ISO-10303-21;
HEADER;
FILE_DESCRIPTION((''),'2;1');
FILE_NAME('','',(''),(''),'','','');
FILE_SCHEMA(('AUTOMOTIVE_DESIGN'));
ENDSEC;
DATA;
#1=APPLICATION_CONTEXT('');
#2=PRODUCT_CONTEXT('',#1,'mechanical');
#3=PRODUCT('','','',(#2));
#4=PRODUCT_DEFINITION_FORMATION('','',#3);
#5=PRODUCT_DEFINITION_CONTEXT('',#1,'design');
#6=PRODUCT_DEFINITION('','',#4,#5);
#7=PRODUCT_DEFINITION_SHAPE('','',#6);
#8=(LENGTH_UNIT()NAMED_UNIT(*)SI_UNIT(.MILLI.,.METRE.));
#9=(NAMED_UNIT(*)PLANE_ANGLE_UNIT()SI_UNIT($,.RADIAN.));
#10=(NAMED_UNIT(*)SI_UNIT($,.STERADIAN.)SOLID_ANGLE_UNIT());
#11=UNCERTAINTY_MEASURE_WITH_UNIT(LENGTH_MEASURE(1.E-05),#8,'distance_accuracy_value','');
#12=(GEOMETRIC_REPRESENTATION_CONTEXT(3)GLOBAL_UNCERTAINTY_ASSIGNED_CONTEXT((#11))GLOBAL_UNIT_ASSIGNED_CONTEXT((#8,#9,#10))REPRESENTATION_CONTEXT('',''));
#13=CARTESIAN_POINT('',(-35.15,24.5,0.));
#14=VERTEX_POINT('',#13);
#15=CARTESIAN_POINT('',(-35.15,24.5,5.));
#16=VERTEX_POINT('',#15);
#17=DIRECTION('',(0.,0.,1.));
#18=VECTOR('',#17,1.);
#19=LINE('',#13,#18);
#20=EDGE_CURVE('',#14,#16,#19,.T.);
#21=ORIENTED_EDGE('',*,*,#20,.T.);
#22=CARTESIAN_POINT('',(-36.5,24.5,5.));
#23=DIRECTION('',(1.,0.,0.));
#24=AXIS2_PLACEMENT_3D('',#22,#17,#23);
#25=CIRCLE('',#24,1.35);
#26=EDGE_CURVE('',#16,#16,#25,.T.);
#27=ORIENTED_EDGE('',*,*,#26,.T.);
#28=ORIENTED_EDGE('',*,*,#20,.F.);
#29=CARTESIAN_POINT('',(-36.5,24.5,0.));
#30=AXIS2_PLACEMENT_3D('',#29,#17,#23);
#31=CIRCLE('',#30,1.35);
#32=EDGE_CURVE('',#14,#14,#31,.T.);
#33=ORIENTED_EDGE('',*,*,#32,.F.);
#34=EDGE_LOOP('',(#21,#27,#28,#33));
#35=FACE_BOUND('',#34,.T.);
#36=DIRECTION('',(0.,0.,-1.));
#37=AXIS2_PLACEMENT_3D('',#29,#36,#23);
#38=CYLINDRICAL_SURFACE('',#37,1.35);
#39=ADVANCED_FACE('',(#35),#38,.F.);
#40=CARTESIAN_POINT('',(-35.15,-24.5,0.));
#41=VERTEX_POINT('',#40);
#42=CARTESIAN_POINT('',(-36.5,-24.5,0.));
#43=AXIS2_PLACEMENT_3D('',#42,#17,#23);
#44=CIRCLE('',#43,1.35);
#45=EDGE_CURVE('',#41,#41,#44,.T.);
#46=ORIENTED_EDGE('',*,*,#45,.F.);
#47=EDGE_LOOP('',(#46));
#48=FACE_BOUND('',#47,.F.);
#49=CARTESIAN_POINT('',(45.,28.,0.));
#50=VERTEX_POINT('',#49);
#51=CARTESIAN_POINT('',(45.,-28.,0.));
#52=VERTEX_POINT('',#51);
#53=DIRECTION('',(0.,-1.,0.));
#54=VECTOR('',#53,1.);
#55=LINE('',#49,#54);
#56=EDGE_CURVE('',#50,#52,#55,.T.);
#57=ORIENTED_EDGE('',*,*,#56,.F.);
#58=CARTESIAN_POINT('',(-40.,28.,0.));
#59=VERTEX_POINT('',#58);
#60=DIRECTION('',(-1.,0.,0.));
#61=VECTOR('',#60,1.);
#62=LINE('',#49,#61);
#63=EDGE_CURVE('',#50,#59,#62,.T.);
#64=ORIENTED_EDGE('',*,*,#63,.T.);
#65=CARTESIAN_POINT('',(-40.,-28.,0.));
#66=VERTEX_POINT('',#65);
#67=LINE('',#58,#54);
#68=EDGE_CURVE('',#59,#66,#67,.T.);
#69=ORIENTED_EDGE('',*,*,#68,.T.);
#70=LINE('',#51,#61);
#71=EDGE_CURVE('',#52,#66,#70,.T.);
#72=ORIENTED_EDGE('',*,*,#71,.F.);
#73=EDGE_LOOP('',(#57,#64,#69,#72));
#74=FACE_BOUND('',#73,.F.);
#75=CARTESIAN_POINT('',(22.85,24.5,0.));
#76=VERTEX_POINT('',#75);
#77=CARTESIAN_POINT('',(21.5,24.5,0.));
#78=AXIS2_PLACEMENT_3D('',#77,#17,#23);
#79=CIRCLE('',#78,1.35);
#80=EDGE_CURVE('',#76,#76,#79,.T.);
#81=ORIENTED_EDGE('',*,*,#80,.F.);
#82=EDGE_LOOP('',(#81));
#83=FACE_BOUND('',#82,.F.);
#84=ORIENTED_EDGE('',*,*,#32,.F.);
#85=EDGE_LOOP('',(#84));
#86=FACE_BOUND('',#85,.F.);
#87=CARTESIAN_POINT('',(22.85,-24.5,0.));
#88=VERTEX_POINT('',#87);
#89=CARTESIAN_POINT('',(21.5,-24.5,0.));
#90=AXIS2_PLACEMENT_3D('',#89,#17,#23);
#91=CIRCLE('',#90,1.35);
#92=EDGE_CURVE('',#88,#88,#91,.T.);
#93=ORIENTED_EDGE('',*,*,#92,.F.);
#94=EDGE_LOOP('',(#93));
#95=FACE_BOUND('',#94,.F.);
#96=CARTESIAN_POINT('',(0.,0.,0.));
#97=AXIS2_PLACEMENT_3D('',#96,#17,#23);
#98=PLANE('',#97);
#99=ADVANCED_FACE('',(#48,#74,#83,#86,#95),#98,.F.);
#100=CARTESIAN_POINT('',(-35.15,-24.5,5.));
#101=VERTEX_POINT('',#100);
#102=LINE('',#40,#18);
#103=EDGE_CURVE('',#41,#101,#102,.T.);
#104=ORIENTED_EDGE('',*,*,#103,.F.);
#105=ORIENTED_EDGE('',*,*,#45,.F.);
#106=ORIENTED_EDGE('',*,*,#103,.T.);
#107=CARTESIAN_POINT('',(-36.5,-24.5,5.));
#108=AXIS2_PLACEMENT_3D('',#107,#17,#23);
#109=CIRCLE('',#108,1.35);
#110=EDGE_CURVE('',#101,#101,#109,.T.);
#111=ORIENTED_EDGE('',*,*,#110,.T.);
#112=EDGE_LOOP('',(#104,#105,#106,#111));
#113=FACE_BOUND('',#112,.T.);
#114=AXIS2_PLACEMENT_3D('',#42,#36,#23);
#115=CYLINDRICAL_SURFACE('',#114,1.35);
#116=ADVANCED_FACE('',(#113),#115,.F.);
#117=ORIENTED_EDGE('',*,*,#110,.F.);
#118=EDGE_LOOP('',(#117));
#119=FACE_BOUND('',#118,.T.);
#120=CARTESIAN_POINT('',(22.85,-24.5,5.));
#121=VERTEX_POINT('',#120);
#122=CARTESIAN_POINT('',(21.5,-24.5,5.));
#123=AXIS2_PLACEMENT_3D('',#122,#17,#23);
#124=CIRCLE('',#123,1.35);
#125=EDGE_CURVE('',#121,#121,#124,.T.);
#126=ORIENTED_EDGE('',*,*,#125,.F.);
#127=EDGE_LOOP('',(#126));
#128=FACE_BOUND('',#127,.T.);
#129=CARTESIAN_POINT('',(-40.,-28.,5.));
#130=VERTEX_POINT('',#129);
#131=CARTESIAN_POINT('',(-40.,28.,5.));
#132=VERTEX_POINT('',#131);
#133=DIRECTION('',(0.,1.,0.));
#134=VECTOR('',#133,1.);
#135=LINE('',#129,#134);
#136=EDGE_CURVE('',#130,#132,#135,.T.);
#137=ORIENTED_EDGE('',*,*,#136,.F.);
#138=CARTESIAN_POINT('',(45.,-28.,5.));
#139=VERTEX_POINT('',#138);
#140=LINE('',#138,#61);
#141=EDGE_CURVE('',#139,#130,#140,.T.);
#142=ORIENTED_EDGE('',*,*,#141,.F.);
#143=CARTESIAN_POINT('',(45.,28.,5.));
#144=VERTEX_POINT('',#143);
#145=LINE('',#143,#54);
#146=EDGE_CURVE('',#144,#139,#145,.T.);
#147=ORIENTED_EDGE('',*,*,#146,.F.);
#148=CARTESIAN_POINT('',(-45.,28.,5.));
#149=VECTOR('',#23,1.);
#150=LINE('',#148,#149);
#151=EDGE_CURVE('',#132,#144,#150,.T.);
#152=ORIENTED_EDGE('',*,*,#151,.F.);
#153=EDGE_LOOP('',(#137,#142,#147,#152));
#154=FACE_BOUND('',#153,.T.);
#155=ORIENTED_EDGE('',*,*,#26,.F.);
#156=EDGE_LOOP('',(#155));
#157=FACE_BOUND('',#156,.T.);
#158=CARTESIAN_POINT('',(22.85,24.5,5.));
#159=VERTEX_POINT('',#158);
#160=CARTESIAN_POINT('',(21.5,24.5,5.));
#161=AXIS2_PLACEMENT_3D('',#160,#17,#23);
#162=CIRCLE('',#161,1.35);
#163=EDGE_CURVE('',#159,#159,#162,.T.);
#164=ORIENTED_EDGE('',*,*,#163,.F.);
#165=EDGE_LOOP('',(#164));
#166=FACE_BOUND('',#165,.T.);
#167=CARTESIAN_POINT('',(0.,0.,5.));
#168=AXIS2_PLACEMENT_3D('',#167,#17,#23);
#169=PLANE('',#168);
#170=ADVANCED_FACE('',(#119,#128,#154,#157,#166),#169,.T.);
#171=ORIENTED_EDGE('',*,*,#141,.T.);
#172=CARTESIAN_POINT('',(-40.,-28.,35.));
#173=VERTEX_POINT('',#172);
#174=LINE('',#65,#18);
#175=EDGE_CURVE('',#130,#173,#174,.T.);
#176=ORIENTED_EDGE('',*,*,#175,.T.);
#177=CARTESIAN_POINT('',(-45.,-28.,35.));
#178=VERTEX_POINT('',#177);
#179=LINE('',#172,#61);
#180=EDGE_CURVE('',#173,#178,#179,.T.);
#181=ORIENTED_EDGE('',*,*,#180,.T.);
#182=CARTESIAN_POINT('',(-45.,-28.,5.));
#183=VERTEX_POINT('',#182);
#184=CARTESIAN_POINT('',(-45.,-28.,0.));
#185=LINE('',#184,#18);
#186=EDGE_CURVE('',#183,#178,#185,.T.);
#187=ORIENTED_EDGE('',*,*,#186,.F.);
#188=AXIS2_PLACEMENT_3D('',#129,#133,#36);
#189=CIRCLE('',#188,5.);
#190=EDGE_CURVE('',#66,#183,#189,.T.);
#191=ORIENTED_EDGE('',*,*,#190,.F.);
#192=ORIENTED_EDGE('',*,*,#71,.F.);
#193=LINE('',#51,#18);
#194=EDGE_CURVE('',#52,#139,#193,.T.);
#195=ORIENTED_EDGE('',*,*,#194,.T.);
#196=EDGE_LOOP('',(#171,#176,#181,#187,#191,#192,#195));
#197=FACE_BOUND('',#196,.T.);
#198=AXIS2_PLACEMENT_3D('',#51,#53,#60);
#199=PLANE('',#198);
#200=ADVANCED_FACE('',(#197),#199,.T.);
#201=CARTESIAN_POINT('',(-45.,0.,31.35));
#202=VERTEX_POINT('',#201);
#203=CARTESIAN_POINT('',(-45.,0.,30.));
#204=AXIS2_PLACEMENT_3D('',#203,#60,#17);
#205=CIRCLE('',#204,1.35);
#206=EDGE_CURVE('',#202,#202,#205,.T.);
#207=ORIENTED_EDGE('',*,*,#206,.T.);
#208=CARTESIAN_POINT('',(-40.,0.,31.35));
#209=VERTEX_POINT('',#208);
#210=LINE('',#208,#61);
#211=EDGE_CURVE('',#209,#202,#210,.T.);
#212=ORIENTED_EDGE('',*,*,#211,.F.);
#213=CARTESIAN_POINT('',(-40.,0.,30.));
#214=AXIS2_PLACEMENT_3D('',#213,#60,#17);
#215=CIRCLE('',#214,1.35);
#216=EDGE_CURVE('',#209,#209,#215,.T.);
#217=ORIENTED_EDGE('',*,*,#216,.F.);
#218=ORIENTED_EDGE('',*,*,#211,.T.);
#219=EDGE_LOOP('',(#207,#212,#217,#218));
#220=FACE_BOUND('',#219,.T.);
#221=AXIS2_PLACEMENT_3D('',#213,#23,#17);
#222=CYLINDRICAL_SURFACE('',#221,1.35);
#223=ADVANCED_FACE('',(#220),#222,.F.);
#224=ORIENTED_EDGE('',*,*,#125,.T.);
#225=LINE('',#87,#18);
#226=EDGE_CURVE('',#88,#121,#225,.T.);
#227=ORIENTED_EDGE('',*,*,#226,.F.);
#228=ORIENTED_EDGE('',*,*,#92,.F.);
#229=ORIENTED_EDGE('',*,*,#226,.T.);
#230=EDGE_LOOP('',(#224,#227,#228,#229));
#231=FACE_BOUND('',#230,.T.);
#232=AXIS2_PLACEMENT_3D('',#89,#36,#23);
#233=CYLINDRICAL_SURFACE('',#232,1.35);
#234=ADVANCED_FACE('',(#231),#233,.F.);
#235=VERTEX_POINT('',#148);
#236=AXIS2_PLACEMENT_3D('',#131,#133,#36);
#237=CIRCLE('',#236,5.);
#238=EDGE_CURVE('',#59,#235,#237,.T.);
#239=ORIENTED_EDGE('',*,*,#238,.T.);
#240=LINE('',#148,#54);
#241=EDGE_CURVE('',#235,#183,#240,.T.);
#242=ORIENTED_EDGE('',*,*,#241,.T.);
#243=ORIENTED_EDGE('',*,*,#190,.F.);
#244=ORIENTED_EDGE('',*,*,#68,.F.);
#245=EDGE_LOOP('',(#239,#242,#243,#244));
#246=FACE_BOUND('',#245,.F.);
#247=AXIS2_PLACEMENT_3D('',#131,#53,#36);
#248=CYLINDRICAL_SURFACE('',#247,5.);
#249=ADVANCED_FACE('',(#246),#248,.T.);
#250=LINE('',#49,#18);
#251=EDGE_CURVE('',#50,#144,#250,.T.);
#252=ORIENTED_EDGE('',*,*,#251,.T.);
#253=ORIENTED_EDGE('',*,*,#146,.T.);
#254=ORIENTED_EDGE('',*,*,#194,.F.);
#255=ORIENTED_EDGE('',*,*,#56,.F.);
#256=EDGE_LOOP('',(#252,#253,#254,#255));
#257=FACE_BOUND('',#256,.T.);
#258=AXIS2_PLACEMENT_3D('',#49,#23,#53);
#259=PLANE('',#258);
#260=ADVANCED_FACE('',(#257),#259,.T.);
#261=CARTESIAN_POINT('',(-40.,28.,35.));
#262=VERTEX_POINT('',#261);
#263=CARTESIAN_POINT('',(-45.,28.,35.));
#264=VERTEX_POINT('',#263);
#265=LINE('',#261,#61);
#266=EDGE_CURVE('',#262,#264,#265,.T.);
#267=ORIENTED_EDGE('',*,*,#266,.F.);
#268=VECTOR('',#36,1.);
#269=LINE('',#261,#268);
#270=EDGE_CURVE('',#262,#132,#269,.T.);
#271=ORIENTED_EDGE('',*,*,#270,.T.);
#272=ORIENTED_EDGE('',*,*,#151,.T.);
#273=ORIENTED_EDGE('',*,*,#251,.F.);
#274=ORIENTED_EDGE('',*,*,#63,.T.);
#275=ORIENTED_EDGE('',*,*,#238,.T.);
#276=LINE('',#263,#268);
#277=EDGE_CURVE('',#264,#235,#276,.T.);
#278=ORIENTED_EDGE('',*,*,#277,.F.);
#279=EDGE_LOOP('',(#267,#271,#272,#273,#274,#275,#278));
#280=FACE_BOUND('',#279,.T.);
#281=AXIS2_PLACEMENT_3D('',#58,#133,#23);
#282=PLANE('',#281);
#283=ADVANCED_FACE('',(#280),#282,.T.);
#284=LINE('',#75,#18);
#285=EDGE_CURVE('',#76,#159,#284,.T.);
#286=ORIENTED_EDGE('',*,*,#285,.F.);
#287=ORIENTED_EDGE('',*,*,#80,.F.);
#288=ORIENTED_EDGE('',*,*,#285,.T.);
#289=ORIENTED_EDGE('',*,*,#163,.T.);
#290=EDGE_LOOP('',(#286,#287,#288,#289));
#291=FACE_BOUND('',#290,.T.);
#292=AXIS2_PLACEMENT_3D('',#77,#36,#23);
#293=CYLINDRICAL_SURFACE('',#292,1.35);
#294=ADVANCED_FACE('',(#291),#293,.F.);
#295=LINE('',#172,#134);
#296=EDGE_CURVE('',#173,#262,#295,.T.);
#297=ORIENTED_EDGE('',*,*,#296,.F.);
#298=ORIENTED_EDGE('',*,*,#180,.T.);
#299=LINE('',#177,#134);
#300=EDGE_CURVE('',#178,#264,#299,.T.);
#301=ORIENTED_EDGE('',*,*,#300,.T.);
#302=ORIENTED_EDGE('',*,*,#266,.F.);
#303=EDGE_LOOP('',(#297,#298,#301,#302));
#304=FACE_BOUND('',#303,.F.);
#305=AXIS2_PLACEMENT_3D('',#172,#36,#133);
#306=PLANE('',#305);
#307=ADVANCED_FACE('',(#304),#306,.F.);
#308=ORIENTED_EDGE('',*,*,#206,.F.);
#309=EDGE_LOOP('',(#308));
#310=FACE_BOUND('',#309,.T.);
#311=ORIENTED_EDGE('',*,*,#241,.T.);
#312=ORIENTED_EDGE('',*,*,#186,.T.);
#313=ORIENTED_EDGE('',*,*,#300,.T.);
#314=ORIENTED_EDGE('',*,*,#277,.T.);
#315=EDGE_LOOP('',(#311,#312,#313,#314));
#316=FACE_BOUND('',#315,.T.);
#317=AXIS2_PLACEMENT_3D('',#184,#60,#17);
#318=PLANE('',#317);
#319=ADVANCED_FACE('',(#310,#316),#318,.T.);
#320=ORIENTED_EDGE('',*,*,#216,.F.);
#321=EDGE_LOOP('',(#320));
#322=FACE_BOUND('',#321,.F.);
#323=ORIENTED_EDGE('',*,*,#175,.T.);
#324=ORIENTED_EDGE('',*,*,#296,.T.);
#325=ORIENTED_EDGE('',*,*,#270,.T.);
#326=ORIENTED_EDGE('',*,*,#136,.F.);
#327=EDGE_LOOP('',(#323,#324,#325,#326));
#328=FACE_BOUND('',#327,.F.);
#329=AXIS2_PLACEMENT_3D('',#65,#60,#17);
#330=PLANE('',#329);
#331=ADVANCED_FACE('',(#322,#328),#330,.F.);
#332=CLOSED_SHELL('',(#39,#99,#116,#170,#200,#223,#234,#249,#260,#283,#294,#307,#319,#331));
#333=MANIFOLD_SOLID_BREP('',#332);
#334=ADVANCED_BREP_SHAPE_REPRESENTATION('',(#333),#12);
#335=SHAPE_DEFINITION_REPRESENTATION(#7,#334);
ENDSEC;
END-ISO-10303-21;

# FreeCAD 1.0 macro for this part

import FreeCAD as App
import Part
import Sketcher


def edges_at(feature, points):
    """Names of the edges that pass closest to the given points."""
    edges = feature.Shape.Edges
    near = lambda p: min(range(len(edges)), key=lambda i: edges[i].distToShape(Part.Vertex(*p))[0])
    return sorted({f"Edge{near(p) + 1}" for p in points})


def add_polygon(sketch, points):
    """Adds a closed chain of lines whose ends are joined by coincident constraints."""
    first, n = sketch.GeometryCount, len(points)
    for a, b in zip(points, points[1:] + points[:1]):
        sketch.addGeometry(Part.LineSegment(App.Vector(*a, 0), App.Vector(*b, 0)), False)
    for i in range(n):
        sketch.addConstraint(Sketcher.Constraint("Coincident", first + i, 2, first + (i + 1) % n, 1))

doc = App.newDocument("Part")
body = doc.addObject("PartDesign::Body", "Body")

# Sketch on XY plane
sketch1 = body.newObject("Sketcher::SketchObject", "Sketch")
sketch1.AttachmentSupport = (doc.getObject("XY_Plane"), [""])
sketch1.MapMode = "FlatFace"
add_polygon(sketch1, [(45, 28), (-40, 28), (-40, -28), (45, -28)])  # lines 0-3
sketch1.addGeometry(Part.Circle(App.Vector(-36.5, -24.5, 0), App.Vector(0, 0, 1), 1.4), False)  # 4
sketch1.addGeometry(Part.Circle(App.Vector(21.5, -24.5, 0), App.Vector(0, 0, 1), 1.4), False)  # 5
sketch1.addGeometry(Part.Circle(App.Vector(-36.5, 24.5, 0), App.Vector(0, 0, 1), 1.4), False)  # 6
sketch1.addGeometry(Part.Circle(App.Vector(21.5, 24.5, 0), App.Vector(0, 0, 1), 1.4), False)  # 7
sketch1.addConstraint([
    Sketcher.Constraint("Horizontal", 0),
    Sketcher.Constraint("Vertical", 1),
    Sketcher.Constraint("Horizontal", 2),
    Sketcher.Constraint("Vertical", 3),
    Sketcher.Constraint("Equal", 4, 5),
    Sketcher.Constraint("Equal", 5, 6),
    Sketcher.Constraint("Equal", 6, 7),
    Sketcher.Constraint("Symmetric", 4, 3, 6, 3, -1),
    Sketcher.Constraint("Symmetric", 5, 3, 7, 3, -1),
    Sketcher.Constraint("Horizontal", 4, 3, 5, 3),
    Sketcher.Constraint("Diameter", 4, 2.7),
    Sketcher.Constraint("DistanceY", 1, 2, 1, 1, 56.0),
    Sketcher.Constraint("DistanceY", 4, 3, 6, 3, 49.0),
    Sketcher.Constraint("DistanceX", 0, 2, 6, 3, 3.5),
    Sketcher.Constraint("DistanceY", 6, 3, 0, 2, 3.5),
    Sketcher.Constraint("DistanceX", 0, 2, 0, 1, 85.0),
    Sketcher.Constraint("DistanceX", 0, 2, -1, 1, 40.0),
    Sketcher.Constraint("DistanceX", 4, 3, 5, 3, 58.0),
])
pad1 = body.newObject("PartDesign::Pad", "Pad")
pad1.Profile = sketch1
pad1.Length = 5

# Sketch on YZ plane
sketch2 = body.newObject("Sketcher::SketchObject", "Sketch001")
sketch2.AttachmentSupport = (doc.getObject("YZ_Plane"), [""])
sketch2.MapMode = "FlatFace"
sketch2.AttachmentOffset = App.Placement(App.Vector(0, 0, -40), App.Rotation())
add_polygon(sketch2, [(28, 0), (-28, 0), (-28, 35), (28, 35)])  # lines 0-3
sketch2.addGeometry(Part.Circle(App.Vector(0, 30, 0), App.Vector(0, 0, 1), 1.4), False)  # 4
sketch2.addConstraint([
    Sketcher.Constraint("Horizontal", 0),
    Sketcher.Constraint("Vertical", 1),
    Sketcher.Constraint("Horizontal", 2),
    Sketcher.Constraint("Vertical", 3),
    Sketcher.Constraint("Symmetric", 0, 2, 3, 2, -1, 1),
    Sketcher.Constraint("PointOnObject", 4, 3, -2),
    Sketcher.Constraint("Diameter", 4, 2.7),
    Sketcher.Constraint("DistanceX", 0, 2, 0, 1, 56.0),
    Sketcher.Constraint("DistanceY", 1, 1, 1, 2, 35.0),
    Sketcher.Constraint("DistanceY", 4, 3, 1, 2, 5.0),
])
pad2 = body.newObject("PartDesign::Pad", "Pad001")
pad2.Profile = sketch2
pad2.Length = 5
pad2.Reversed = True
doc.recompute()

fillet = body.newObject("PartDesign::Fillet", "Fillet")
fillet.Base = (pad2, edges_at(pad2, [(-45, 0, 0)]))
fillet.Radius = 5

doc.recompute()
